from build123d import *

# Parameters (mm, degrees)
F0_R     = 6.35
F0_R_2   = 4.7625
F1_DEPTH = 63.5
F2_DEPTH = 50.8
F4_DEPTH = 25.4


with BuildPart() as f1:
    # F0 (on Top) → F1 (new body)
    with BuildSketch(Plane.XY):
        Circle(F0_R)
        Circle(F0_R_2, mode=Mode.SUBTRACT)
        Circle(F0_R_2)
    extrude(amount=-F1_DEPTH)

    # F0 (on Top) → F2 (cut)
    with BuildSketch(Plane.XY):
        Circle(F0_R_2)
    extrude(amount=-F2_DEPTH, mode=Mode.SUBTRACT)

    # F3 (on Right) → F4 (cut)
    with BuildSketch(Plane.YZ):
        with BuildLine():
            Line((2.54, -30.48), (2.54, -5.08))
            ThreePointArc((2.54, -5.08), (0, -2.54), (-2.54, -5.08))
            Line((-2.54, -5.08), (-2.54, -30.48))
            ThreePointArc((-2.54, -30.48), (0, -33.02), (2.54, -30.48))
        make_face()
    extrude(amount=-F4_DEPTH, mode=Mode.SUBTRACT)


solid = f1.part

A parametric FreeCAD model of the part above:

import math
import FreeCAD as App
import Part
import Sketcher
from FreeCAD import Vector
Q = App.Units.Quantity

doc = App.newDocument("Part")
body = doc.addObject("PartDesign::Body", "Body")

sketch1 = body.newObject("Sketcher::SketchObject", "Sketch")
sketch1.AttachmentSupport = (doc.getObject("XY_Plane"), [""])
sketch1.MapMode = "FlatFace"
sketch1.addGeometry(Part.Circle(Vector(0, 0, 0), Vector(0, 0, 1), 6), False)
sketch1.addConstraint([
    Sketcher.Constraint("Coincident", 0, 3, -1, 1),
    Sketcher.Constraint("Diameter", 0, Q("0.5 in")),
])
pad1 = body.newObject("PartDesign::Pad", "Pad")
pad1.Profile = sketch1
pad1.Length = Q("2.5 in")
pad1.Reversed = True

sketch2 = body.newObject("Sketcher::SketchObject", "Sketch001")
sketch2.AttachmentSupport = (doc.getObject("XY_Plane"), [""])
sketch2.MapMode = "FlatFace"
sketch2.addGeometry(Part.Circle(Vector(0, 0, 0), Vector(0, 0, 1), 4.8), False)
sketch2.addConstraint([
    Sketcher.Constraint("Coincident", 0, 3, -1, 1),
    Sketcher.Constraint("Diameter", 0, Q("0.375 in")),
])
pocket1 = body.newObject("PartDesign::Pocket", "Pocket")
pocket1.Profile = sketch2
pocket1.Length = Q("2 in")

sketch3 = body.newObject("Sketcher::SketchObject", "Sketch002")
sketch3.AttachmentSupport = (doc.getObject("YZ_Plane"), [""])
sketch3.MapMode = "FlatFace"
sketch3.addGeometry([
    Part.LineSegment(Vector(2.5, -30.5, 0), Vector(2.5, -5.1, 0)),
    Part.ArcOfCircle(Part.Circle(Vector(0, -5.1, 0), Vector(0, 0, 1), 2.5), math.radians(0), math.radians(180)),
    Part.LineSegment(Vector(-2.5, -5.1, 0), Vector(-2.5, -30.5, 0)),
    Part.ArcOfCircle(Part.Circle(Vector(0, -30.5, 0), Vector(0, 0, 1), 2.5), math.radians(180), math.radians(360)),
], False)
sketch3.addConstraint([
    Sketcher.Constraint("Tangent", 0, 2, 1, 1),
    Sketcher.Constraint("Tangent", 1, 2, 2, 1),
    Sketcher.Constraint("Tangent", 2, 2, 3, 1),
    Sketcher.Constraint("Tangent", 3, 2, 0, 1),
    Sketcher.Constraint("Vertical", 0),
    Sketcher.Constraint("Vertical", 2),
    Sketcher.Constraint("PointOnObject", 1, 3, -2),
    Sketcher.Constraint("Radius", 1, Q("0.1 in")),
    Sketcher.Constraint("DistanceY", 0, 1, 0, 2, Q("1 in")),
    Sketcher.Constraint("DistanceY", 1, 3, -1, 1, Q("0.2 in")),
])
pocket2 = body.newObject("PartDesign::Pocket", "Pocket001")
pocket2.Profile = sketch3
pocket2.Length = Q("1 in")

doc.recompute()
